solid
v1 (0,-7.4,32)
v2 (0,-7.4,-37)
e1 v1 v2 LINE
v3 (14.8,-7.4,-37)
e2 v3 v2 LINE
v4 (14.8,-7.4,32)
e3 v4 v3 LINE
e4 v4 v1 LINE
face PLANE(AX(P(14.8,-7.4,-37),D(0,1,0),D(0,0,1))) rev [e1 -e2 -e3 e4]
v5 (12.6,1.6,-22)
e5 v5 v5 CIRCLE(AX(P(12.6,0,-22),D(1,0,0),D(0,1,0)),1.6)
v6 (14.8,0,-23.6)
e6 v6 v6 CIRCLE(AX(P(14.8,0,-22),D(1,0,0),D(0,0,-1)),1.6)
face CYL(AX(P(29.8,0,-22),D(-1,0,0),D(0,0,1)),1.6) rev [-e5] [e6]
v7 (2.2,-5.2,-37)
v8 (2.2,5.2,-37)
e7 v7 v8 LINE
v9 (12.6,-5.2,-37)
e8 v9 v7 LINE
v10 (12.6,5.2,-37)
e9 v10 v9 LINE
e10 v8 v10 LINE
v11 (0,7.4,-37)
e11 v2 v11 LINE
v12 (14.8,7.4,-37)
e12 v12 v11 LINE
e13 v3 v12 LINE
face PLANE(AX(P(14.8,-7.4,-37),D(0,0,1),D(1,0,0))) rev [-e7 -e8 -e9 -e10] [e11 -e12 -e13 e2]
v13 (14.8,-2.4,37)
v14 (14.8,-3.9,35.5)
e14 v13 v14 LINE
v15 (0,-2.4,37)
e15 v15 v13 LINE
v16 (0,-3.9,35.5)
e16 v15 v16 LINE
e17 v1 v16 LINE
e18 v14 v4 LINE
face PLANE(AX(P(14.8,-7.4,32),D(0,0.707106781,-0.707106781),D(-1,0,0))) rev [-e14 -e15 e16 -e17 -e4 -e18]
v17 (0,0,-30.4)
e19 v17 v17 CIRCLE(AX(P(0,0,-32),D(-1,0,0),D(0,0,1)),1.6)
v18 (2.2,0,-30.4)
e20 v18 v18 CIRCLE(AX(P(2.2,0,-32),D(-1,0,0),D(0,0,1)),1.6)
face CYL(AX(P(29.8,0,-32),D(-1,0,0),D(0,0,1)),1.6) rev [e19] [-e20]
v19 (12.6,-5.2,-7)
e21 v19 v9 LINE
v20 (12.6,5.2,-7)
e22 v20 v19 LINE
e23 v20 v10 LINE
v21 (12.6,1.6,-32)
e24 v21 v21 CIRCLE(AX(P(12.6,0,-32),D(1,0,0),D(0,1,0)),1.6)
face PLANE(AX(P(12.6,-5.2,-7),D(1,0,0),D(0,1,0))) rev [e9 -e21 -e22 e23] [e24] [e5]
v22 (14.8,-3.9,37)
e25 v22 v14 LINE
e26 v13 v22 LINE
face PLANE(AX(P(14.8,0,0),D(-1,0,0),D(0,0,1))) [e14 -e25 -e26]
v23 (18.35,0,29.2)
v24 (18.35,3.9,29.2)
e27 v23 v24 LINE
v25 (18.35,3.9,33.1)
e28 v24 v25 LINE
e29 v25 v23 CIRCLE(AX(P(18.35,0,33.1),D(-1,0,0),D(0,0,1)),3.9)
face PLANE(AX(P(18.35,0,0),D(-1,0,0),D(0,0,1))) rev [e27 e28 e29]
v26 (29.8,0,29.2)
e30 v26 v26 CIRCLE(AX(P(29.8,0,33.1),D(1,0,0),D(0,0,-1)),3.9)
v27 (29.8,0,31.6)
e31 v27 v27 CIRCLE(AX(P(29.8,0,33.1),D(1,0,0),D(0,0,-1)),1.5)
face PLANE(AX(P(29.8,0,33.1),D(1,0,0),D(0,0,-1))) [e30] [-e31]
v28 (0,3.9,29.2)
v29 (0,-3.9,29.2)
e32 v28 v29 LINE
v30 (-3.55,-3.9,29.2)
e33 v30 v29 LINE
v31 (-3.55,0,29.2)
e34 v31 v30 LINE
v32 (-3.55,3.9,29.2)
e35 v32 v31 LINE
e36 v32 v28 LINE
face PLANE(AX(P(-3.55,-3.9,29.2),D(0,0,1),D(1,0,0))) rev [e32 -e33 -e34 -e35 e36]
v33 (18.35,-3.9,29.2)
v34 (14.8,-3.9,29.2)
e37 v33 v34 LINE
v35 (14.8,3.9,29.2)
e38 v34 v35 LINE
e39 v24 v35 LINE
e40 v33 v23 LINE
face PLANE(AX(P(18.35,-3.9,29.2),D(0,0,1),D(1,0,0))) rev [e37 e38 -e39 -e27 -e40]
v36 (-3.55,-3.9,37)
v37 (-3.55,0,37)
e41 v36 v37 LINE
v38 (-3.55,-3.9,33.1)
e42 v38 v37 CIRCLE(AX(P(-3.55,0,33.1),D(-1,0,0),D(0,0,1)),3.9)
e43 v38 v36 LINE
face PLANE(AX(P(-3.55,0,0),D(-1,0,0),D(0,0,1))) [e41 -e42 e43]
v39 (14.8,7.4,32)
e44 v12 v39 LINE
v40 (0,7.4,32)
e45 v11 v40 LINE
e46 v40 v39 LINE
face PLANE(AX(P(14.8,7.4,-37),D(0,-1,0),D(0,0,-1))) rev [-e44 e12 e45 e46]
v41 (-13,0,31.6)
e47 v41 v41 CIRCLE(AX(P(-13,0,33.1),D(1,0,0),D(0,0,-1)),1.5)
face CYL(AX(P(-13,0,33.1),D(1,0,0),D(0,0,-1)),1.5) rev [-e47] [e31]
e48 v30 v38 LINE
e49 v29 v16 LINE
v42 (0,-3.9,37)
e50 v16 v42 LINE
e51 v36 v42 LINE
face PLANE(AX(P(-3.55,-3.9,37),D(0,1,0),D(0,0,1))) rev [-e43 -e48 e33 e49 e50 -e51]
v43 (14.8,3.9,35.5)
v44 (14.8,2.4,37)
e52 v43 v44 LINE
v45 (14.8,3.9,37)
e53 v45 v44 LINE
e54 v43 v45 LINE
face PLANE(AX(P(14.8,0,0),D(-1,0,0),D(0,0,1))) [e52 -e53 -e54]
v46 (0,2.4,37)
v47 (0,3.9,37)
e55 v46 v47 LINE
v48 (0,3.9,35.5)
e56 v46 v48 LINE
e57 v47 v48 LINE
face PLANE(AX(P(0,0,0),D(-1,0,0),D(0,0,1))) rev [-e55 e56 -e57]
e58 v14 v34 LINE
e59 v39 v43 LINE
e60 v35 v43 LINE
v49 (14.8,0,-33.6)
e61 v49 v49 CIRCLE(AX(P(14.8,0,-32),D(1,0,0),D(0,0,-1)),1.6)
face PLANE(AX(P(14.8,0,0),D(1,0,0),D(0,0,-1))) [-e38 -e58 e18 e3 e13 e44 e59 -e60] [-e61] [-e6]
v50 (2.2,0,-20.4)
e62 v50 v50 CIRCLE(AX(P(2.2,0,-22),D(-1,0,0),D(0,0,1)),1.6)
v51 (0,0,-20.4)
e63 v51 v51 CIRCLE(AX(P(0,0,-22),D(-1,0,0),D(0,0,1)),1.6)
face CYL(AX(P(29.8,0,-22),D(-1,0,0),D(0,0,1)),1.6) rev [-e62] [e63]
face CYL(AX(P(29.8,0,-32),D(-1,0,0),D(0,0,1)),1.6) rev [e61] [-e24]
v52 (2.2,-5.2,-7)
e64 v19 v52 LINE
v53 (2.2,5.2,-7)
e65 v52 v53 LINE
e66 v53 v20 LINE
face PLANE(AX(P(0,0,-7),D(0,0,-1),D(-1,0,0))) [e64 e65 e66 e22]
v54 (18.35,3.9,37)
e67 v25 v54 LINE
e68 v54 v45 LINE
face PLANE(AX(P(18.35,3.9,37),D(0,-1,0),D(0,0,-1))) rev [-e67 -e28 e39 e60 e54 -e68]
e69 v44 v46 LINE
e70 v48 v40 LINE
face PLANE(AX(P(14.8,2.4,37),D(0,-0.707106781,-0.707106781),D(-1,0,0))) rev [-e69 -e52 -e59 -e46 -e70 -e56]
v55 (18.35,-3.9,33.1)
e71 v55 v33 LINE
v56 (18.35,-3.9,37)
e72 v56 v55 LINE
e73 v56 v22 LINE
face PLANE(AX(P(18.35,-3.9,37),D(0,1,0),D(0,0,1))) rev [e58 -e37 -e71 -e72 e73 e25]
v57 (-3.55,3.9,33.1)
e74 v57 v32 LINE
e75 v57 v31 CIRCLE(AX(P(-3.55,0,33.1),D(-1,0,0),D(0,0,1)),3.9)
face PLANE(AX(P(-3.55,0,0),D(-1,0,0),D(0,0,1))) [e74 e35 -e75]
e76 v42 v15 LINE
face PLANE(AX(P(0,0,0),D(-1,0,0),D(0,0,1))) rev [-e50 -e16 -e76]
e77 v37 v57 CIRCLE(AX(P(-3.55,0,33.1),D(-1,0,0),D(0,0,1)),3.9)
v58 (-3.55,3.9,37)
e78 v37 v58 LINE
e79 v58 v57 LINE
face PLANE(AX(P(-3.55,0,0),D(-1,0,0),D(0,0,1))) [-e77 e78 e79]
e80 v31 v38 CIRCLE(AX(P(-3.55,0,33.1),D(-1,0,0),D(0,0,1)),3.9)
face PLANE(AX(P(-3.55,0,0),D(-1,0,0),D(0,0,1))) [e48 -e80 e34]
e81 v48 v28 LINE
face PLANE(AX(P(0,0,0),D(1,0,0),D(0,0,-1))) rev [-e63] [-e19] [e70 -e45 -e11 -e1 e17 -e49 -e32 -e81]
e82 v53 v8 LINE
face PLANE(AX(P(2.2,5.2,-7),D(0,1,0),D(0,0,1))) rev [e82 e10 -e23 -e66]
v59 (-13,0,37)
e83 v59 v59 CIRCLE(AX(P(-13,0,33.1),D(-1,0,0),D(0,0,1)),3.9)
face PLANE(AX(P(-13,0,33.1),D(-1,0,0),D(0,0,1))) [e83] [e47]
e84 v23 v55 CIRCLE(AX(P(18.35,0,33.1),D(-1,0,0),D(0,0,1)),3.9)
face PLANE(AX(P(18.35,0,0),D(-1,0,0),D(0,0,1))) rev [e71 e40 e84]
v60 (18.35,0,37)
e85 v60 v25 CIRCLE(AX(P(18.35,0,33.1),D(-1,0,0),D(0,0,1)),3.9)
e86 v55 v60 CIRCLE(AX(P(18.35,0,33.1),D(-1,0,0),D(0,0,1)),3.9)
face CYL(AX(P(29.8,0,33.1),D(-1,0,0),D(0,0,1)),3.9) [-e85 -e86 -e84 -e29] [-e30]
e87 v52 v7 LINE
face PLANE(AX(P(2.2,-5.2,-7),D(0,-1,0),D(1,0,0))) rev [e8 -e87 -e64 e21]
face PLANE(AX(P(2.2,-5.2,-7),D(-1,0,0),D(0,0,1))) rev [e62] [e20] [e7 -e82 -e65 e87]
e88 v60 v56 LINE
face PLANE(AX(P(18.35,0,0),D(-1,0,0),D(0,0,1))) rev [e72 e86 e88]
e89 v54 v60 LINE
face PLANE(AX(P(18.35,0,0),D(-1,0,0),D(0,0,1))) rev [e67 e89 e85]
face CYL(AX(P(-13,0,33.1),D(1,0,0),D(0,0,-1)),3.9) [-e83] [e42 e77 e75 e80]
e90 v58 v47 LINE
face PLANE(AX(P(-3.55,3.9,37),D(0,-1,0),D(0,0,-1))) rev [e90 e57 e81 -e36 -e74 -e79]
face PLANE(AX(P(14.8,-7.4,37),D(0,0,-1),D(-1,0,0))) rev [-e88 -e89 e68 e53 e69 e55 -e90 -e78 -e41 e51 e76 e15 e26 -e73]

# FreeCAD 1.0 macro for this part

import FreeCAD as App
import Part
import Sketcher

V = App.Vector


def edges_at(feature, points):
    """Names of the edges that pass closest to the given points."""
    edges = feature.Shape.Edges
    near = lambda p: min(range(len(edges)), key=lambda i: edges[i].distToShape(Part.Vertex(*p))[0])
    return sorted({f"Edge{near(p) + 1}" for p in points})


def add_polygon(sketch, points):
    """Adds a closed chain of lines whose ends are joined by coincident constraints."""
    first, n = sketch.GeometryCount, len(points)
    for a, b in zip(points, points[1:] + points[:1]):
        sketch.addGeometry(Part.LineSegment(App.Vector(*a, 0), App.Vector(*b, 0)), False)
    for i in range(n):
        sketch.addConstraint(Sketcher.Constraint("Coincident", first + i, 2, first + (i + 1) % n, 1))

doc = App.newDocument("Part")
body = doc.addObject("PartDesign::Body", "Body")

sketch1 = doc.addObject("Sketcher::SketchObject", "Sketch")
body.addObject(sketch1)
sketch1.AttachmentSupport = (doc.YZ_Plane, [""])
sketch1.MapMode = "FlatFace"
add_polygon(sketch1, [(7, 37), (-7, 37), (-7, -37), (7, -37)])
sketch1.addConstraint(Sketcher.Constraint("Horizontal", 0))
sketch1.addConstraint(Sketcher.Constraint("Vertical", 1))
sketch1.addConstraint(Sketcher.Constraint("Horizontal", 2))
sketch1.addConstraint(Sketcher.Constraint("Vertical", 3))
sketch1.addConstraint(Sketcher.Constraint("Symmetric", 0, 2, 2, 2, -1, 1))
sketch1.addConstraint(Sketcher.Constraint("DistanceY", 1, 2, 1, 1, 74.0))
sketch1.addConstraint(Sketcher.Constraint("DistanceX", 0, 2, 0, 1, 14.8))
pad1 = doc.addObject("PartDesign::Pad", "Pad")
body.addObject(pad1)
pad1.Profile = sketch1
pad1.Length = 14.8

sketch2 = doc.addObject("Sketcher::SketchObject", "Sketch001")
body.addObject(sketch2)
sketch2.AttachmentSupport = (doc.XY_Plane, [""])
sketch2.MapMode = "FlatFace"
sketch2.AttachmentOffset = App.Placement(V(0, 0, -37), App.Rotation())
add_polygon(sketch2, [(13, 5), (13, -5), (2, -5), (2, 5)])
sketch2.addConstraint(Sketcher.Constraint("Vertical", 0))
sketch2.addConstraint(Sketcher.Constraint("Horizontal", 1))
sketch2.addConstraint(Sketcher.Constraint("Vertical", 2))
sketch2.addConstraint(Sketcher.Constraint("Horizontal", 3))
sketch2.addConstraint(Sketcher.Constraint("Equal", 3, 0))
sketch2.addConstraint(Sketcher.Constraint("DistanceX", 1, 2, 1, 1, 10.4))
sketch2.addConstraint(Sketcher.Constraint("DistanceX", -1, 1, 0, 2, 12.6))
sketch2.addConstraint(Sketcher.Constraint("DistanceY", 0, 2, -1, 1, 5.2))
pocket1 = doc.addObject("PartDesign::Pocket", "Pocket")
body.addObject(pocket1)
pocket1.Profile = sketch2
pocket1.Length = 30
pocket1.Reversed = True

sketch3 = doc.addObject("Sketcher::SketchObject", "Sketch002")
body.addObject(sketch3)
sketch3.AttachmentSupport = (doc.YZ_Plane, [""])
sketch3.MapMode = "FlatFace"
sketch3.AttachmentOffset = App.Placement(V(0, 0, 14.8), App.Rotation())
sketch3.addGeometry(Part.Circle(V(0, 33.1, 0), V(0, 0, 1), 3.9), False)
sketch3.addConstraint(Sketcher.Constraint("PointOnObject", 0, 3, -2))
sketch3.addConstraint(Sketcher.Constraint("Diameter", 0, 7.8))
sketch3.addConstraint(Sketcher.Constraint("DistanceY", -1, 1, 0, 3, 33.1))
pad2 = doc.addObject("PartDesign::Pad", "Pad001")
body.addObject(pad2)
pad2.Profile = sketch3
pad2.Length = 15

sketch4 = doc.addObject("Sketcher::SketchObject", "Sketch003")
body.addObject(sketch4)
sketch4.AttachmentSupport = (doc.YZ_Plane, [""])
sketch4.MapMode = "FlatFace"
sketch4.addGeometry(Part.Circle(V(0, 33.1, 0), V(0, 0, 1), 3.9), False)
sketch4.addConstraint(Sketcher.Constraint("PointOnObject", 0, 3, -2))
sketch4.addConstraint(Sketcher.Constraint("Diameter", 0, 7.8))
sketch4.addConstraint(Sketcher.Constraint("DistanceY", -1, 1, 0, 3, 33.1))
pad3 = doc.addObject("PartDesign::Pad", "Pad002")
body.addObject(pad3)
pad3.Profile = sketch4
pad3.Length = 13
pad3.Reversed = True
doc.recompute()

chamfer = doc.addObject("PartDesign::Chamfer", "Chamfer")
body.addObject(chamfer)
chamfer.Base = (pad3, edges_at(pad3, [(7.4, 7.4, 37), (7.4, -7.4, 37)]))
chamfer.Size = 5

sketch5 = doc.addObject("Sketcher::SketchObject", "Sketch004")
body.addObject(sketch5)
sketch5.AttachmentSupport = (doc.YZ_Plane, [""])
sketch5.MapMode = "FlatFace"
sketch5.AttachmentOffset = App.Placement(V(0, 0, 29.8), App.Rotation())
sketch5.addGeometry(Part.Circle(V(0, 33.1, 0), V(0, 0, 1), 1.4), False)
sketch5.addConstraint(Sketcher.Constraint("PointOnObject", 0, 3, -2))
sketch5.addConstraint(Sketcher.Constraint("Diameter", 0, 2.9))
sketch5.addConstraint(Sketcher.Constraint("DistanceY", -1, 1, 0, 3, 33.1))
pocket2 = doc.addObject("PartDesign::Pocket", "Pocket001")
body.addObject(pocket2)
pocket2.Profile = sketch5
pocket2.Type = "ThroughAll"

sketch6 = doc.addObject("Sketcher::SketchObject", "Sketch005")
body.addObject(sketch6)
sketch6.AttachmentSupport = (doc.YZ_Plane, [""])
sketch6.MapMode = "FlatFace"
add_polygon(sketch6, [(3.9, 29.2), (-3.9, 29.2), (-3.9, 37), (3.9, 37)])
sketch6.addGeometry(Part.Circle(V(0, 33.1, 0), V(0, 0, 1), 1.5), False)
sketch6.addConstraint(Sketcher.Constraint("Horizontal", 0))
sketch6.addConstraint(Sketcher.Constraint("Vertical", 1))
sketch6.addConstraint(Sketcher.Constraint("Horizontal", 2))
sketch6.addConstraint(Sketcher.Constraint("Vertical", 3))
sketch6.addConstraint(Sketcher.Constraint("PointOnObject", 4, 3, -2))
sketch6.addConstraint(Sketcher.Constraint("Equal", 2, 1))
sketch6.addConstraint(Sketcher.Constraint("Diameter", 4, 3.0))
sketch6.addConstraint(Sketcher.Constraint("DistanceX", 0, 2, 0, 1, 7.8))
sketch6.addConstraint(Sketcher.Constraint("DistanceY", -1, 1, 1, 2, 37.0))
sketch6.addConstraint(Sketcher.Constraint("DistanceY", -1, 1, 4, 3, 33.1))
sketch6.addConstraint(Sketcher.Constraint("DistanceX", 0, 2, -1, 1, 3.9))
pad4 = doc.addObject("PartDesign::Pad", "Pad003")
body.addObject(pad4)
pad4.Profile = sketch6
pad4.Length = 3.55
pad4.Reversed = True

sketch7 = doc.addObject("Sketcher::SketchObject", "Sketch006")
body.addObject(sketch7)
sketch7.AttachmentSupport = (doc.YZ_Plane, [""])
sketch7.MapMode = "FlatFace"
sketch7.AttachmentOffset = App.Placement(V(0, 0, 14.8), App.Rotation())
add_polygon(sketch7, [(4, 37), (-4, 37), (-4, 29), (4, 29)])
sketch7.addConstraint(Sketcher.Constraint("Horizontal", 0))
sketch7.addConstraint(Sketcher.Constraint("Vertical", 1))
sketch7.addConstraint(Sketcher.Constraint("Horizontal", 2))
sketch7.addConstraint(Sketcher.Constraint("Vertical", 3))
sketch7.addConstraint(Sketcher.Constraint("Equal", 2, 1))
sketch7.addConstraint(Sketcher.Constraint("DistanceX", 0, 2, 0, 1, 7.8))
sketch7.addConstraint(Sketcher.Constraint("DistanceY", -1, 1, 0, 2, 37.0))
sketch7.addConstraint(Sketcher.Constraint("DistanceX", 0, 2, -1, 1, 3.9))
pad5 = doc.addObject("PartDesign::Pad", "Pad004")
body.addObject(pad5)
pad5.Profile = sketch7
pad5.Length = 3.55

sketch8 = doc.addObject("Sketcher::SketchObject", "Sketch007")
body.addObject(sketch8)
sketch8.AttachmentSupport = (doc.YZ_Plane, [""])
sketch8.MapMode = "FlatFace"
sketch8.addGeometry(Part.Circle(V(0, -32, 0), V(0, 0, 1), 1.6), False)
sketch8.addGeometry(Part.Circle(V(0, -22, 0), V(0, 0, 1), 1.6), False)
sketch8.addConstraint(Sketcher.Constraint("Equal", 0, 1))
sketch8.addConstraint(Sketcher.Constraint("PointOnObject", 0, 3, -2))
sketch8.addConstraint(Sketcher.Constraint("PointOnObject", 1, 3, -2))
sketch8.addConstraint(Sketcher.Constraint("Diameter", 0, 3.2))
sketch8.addConstraint(Sketcher.Constraint("DistanceY", 0, 3, -1, 1, 32.0))
sketch8.addConstraint(Sketcher.Constraint("DistanceY", 1, 3, -1, 1, 22.0))
pocket3 = doc.addObject("PartDesign::Pocket", "Pocket002")
body.addObject(pocket3)
pocket3.Profile = sketch8
pocket3.Type = "ThroughAll"
pocket3.Reversed = True

sketch9 = doc.addObject("Sketcher::SketchObject", "Sketch008")
body.addObject(sketch9)
sketch9.AttachmentSupport = (doc.YZ_Plane, [""])
sketch9.MapMode = "FlatFace"
sketch9.AttachmentOffset = App.Placement(V(0, 0, 29.8), App.Rotation())
sketch9.addGeometry(Part.Circle(V(0, 33.1, 0), V(0, 0, 1), 1.5), False)
sketch9.addConstraint(Sketcher.Constraint("PointOnObject", 0, 3, -2))
sketch9.addConstraint(Sketcher.Constraint("Diameter", 0, 3.0))
sketch9.addConstraint(Sketcher.Constraint("DistanceY", -1, 1, 0, 3, 33.1))
pocket4 = doc.addObject("PartDesign::Pocket", "Pocket003")
body.addObject(pocket4)
pocket4.Profile = sketch9
pocket4.Type = "ThroughAll"

doc.recompute()
